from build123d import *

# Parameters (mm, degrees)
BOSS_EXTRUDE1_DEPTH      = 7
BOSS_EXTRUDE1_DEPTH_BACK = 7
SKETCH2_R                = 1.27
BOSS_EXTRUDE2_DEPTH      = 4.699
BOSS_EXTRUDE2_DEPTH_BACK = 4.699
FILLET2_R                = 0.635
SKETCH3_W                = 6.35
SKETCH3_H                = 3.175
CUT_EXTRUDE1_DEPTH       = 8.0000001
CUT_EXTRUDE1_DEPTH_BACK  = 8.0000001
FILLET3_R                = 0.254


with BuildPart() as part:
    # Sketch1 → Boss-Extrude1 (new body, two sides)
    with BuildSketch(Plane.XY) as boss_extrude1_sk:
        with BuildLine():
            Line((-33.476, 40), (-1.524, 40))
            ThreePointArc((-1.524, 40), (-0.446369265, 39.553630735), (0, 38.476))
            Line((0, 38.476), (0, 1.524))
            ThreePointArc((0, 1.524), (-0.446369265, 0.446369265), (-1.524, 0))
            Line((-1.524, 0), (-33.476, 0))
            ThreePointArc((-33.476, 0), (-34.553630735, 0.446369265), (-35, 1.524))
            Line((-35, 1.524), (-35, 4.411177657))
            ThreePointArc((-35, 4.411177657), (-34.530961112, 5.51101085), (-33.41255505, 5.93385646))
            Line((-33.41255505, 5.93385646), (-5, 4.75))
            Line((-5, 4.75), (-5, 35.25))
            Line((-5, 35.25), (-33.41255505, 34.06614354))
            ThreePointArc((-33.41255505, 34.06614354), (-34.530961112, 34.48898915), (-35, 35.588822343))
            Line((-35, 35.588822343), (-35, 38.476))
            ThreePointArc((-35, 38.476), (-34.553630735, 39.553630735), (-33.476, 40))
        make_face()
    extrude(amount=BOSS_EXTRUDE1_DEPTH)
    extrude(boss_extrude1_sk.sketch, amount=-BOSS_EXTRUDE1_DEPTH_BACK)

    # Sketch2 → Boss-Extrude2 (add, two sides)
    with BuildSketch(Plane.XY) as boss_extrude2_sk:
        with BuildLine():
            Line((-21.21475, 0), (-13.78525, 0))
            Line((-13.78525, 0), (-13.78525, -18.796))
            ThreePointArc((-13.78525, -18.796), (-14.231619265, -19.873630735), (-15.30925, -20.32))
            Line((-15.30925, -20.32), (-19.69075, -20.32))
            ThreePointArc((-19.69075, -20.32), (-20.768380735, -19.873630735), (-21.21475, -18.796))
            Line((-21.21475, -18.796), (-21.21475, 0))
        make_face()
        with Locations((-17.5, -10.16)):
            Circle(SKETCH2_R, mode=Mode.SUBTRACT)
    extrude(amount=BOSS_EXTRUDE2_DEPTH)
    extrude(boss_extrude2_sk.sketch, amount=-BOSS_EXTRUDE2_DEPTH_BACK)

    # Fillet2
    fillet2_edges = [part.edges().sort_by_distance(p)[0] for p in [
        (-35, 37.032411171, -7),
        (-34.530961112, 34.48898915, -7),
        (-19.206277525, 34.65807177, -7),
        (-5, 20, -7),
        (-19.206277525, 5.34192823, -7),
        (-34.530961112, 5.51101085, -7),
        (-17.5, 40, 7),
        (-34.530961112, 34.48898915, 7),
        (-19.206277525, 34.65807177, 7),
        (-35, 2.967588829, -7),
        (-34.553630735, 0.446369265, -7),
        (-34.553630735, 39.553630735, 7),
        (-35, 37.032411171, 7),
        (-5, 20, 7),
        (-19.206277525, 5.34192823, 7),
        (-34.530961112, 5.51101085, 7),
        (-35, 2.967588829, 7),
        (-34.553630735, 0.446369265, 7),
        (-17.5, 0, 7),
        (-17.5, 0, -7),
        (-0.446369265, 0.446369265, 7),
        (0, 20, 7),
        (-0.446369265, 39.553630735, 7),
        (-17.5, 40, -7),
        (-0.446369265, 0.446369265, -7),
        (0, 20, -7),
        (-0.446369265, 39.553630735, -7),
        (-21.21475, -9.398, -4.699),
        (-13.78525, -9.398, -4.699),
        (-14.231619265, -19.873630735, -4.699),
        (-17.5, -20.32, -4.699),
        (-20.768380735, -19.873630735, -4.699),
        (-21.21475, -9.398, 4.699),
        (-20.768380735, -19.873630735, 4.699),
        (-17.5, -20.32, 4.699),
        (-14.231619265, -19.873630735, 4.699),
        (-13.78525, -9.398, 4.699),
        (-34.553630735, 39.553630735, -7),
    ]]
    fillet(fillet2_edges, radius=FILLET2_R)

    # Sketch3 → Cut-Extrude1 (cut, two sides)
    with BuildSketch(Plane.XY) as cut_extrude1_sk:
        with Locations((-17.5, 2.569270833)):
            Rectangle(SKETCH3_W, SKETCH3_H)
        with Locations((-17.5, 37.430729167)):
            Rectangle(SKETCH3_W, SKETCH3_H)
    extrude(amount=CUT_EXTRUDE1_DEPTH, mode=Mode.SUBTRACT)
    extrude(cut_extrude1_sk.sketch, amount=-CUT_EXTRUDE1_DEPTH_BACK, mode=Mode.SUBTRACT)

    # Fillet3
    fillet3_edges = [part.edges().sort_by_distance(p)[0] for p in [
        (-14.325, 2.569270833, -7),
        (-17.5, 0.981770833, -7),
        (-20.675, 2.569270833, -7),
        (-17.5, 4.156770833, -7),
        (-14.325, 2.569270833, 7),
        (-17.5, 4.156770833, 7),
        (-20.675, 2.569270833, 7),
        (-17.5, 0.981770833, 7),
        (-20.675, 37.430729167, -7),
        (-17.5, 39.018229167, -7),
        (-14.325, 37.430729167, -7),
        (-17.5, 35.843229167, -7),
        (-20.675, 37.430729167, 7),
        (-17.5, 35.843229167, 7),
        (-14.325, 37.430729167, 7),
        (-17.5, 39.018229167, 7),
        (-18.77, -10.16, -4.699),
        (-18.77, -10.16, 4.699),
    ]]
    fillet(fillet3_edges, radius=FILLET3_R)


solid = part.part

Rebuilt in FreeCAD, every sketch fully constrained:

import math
import FreeCAD as App
import Part
import Sketcher

V = App.Vector
Q = App.Units.Quantity


def edges_at(feature, points):
    """Names of the edges that pass closest to the given points."""
    edges = feature.Shape.Edges
    near = lambda p: min(range(len(edges)), key=lambda i: edges[i].distToShape(Part.Vertex(*p))[0])
    return sorted({f"Edge{near(p) + 1}" for p in points})

doc = App.newDocument("Part")
body = doc.addObject("PartDesign::Body", "Body")

sketch1 = body.newObject("Sketcher::SketchObject", "Sketch")
sketch1.AttachmentSupport = (doc.getObject("XY_Plane"), [""])
sketch1.MapMode = "FlatFace"
sketch1.addGeometry(Part.LineSegment(V(-1.5, 40, 0), V(-33.5, 40, 0)), False)
sketch1.addGeometry(Part.ArcOfCircle(Part.Circle(V(-33.5, 38.5, 0), V(0, 0, 1), 1.5), math.radians(90), math.radians(180)), False)
sketch1.addGeometry(Part.LineSegment(V(-35, 38.5, 0), V(-35, 35.6, 0)), False)
sketch1.addGeometry(Part.ArcOfCircle(Part.Circle(V(-33.5, 35.6, 0), V(0, 0, 1), 1.5), math.radians(180), math.radians(272)), False)
sketch1.addGeometry(Part.LineSegment(V(-33.4, 34.1, 0), V(-5, 35.2, 0)), False)
sketch1.addGeometry(Part.LineSegment(V(-5, 35.2, 0), V(-5, 4.8, 0)), False)
sketch1.addGeometry(Part.LineSegment(V(-5, 4.8, 0), V(-33.4, 5.9, 0)), False)
sketch1.addGeometry(Part.ArcOfCircle(Part.Circle(V(-33.5, 4.4, 0), V(0, 0, 1), 1.5), math.radians(88), math.radians(180)), False)
sketch1.addGeometry(Part.LineSegment(V(-35, 4.4, 0), V(-35, 1.5, 0)), False)
sketch1.addGeometry(Part.ArcOfCircle(Part.Circle(V(-33.5, 1.5, 0), V(0, 0, 1), 1.5), math.radians(180), math.radians(270)), False)
sketch1.addGeometry(Part.LineSegment(V(-33.5, 0, 0), V(-1.5, 0, 0)), False)
sketch1.addGeometry(Part.ArcOfCircle(Part.Circle(V(-1.5, 1.5, 0), V(0, 0, 1), 1.5), math.radians(-90), math.radians(0)), False)
sketch1.addGeometry(Part.LineSegment(V(0, 1.5, 0), V(0, 38.5, 0)), False)
sketch1.addGeometry(Part.ArcOfCircle(Part.Circle(V(-1.5, 38.5, 0), V(0, 0, 1), 1.5), math.radians(0), math.radians(90)), False)
sketch1.addConstraint(Sketcher.Constraint("Tangent", 0, 2, 1, 1))
sketch1.addConstraint(Sketcher.Constraint("Tangent", 1, 2, 2, 1))
sketch1.addConstraint(Sketcher.Constraint("Tangent", 2, 2, 3, 1))
sketch1.addConstraint(Sketcher.Constraint("Tangent", 3, 2, 4, 1))
sketch1.addConstraint(Sketcher.Constraint("Coincident", 4, 2, 5, 1))
sketch1.addConstraint(Sketcher.Constraint("Coincident", 5, 2, 6, 1))
sketch1.addConstraint(Sketcher.Constraint("Tangent", 6, 2, 7, 1))
sketch1.addConstraint(Sketcher.Constraint("Tangent", 7, 2, 8, 1))
sketch1.addConstraint(Sketcher.Constraint("Tangent", 8, 2, 9, 1))
sketch1.addConstraint(Sketcher.Constraint("Tangent", 9, 2, 10, 1))
sketch1.addConstraint(Sketcher.Constraint("Tangent", 10, 2, 11, 1))
sketch1.addConstraint(Sketcher.Constraint("Tangent", 11, 2, 12, 1))
sketch1.addConstraint(Sketcher.Constraint("Tangent", 12, 2, 13, 1))
sketch1.addConstraint(Sketcher.Constraint("Tangent", 13, 2, 0, 1))
sketch1.addConstraint(Sketcher.Constraint("Horizontal", 0))
sketch1.addConstraint(Sketcher.Constraint("Vertical", 2))
sketch1.addConstraint(Sketcher.Constraint("Vertical", 5))
sketch1.addConstraint(Sketcher.Constraint("Vertical", 8))
sketch1.addConstraint(Sketcher.Constraint("Horizontal", 10))
sketch1.addConstraint(Sketcher.Constraint("Vertical", 12))
sketch1.addConstraint(Sketcher.Constraint("Equal", 1, 3))
sketch1.addConstraint(Sketcher.Constraint("Equal", 3, 7))
sketch1.addConstraint(Sketcher.Constraint("Equal", 7, 9))
sketch1.addConstraint(Sketcher.Constraint("Equal", 9, 11))
sketch1.addConstraint(Sketcher.Constraint("Equal", 11, 13))
sketch1.addConstraint(Sketcher.Constraint("PointOnObject", 9, 2, -1))
sketch1.addConstraint(Sketcher.Constraint("PointOnObject", 11, 2, -2))
sketch1.addConstraint(Sketcher.Constraint("Vertical", 3, 3, 7, 3))
sketch1.addConstraint(Sketcher.Constraint("Vertical", 3, 2, 6, 2))
sketch1.addConstraint(Sketcher.Constraint("Equal", 2, 8))
sketch1.addConstraint(Sketcher.Constraint("Radius", 1, Q("0.06 in")))
sketch1.addConstraint(Sketcher.Constraint("DistanceX", 0, 2, 0, 1, 31.952))
sketch1.addConstraint(Sketcher.Constraint("DistanceY", 5, 2, 5, 1, 30.5))
sketch1.addConstraint(Sketcher.Constraint("DistanceY", 12, 1, 12, 2, 36.952))
sketch1.addConstraint(Sketcher.Constraint("DistanceX", 4, 2, -1, 1, 5.0))
sketch1.addConstraint(Sketcher.Constraint("Distance", 4, 28.437208))
pad1 = body.newObject("PartDesign::Pad", "Pad")
pad1.Profile = sketch1
pad1.Type = "TwoLengths"
pad1.Length = 7
pad1.Length2 = 7

sketch2 = body.newObject("Sketcher::SketchObject", "Sketch001")
sketch2.AttachmentSupport = (doc.getObject("XY_Plane"), [""])
sketch2.MapMode = "FlatFace"
sketch2.addGeometry(Part.LineSegment(V(-13.8, 0, 0), V(-21.2, 0, 0)), False)
sketch2.addGeometry(Part.LineSegment(V(-21.2, 0, 0), V(-21.2, -18.8, 0)), False)
sketch2.addGeometry(Part.ArcOfCircle(Part.Circle(V(-19.7, -18.8, 0), V(0, 0, 1), 1.5), math.radians(180), math.radians(270)), False)
sketch2.addGeometry(Part.LineSegment(V(-19.7, -20.3, 0), V(-15.3, -20.3, 0)), False)
sketch2.addGeometry(Part.ArcOfCircle(Part.Circle(V(-15.3, -18.8, 0), V(0, 0, 1), 1.5), math.radians(-90), math.radians(0)), False)
sketch2.addGeometry(Part.LineSegment(V(-13.8, -18.8, 0), V(-13.8, 0, 0)), False)
sketch2.addGeometry(Part.Circle(V(-17.5, -10.2, 0), V(0, 0, 1), 1.3), False)
sketch2.addConstraint(Sketcher.Constraint("Coincident", 0, 2, 1, 1))
sketch2.addConstraint(Sketcher.Constraint("Tangent", 1, 2, 2, 1))
sketch2.addConstraint(Sketcher.Constraint("Tangent", 2, 2, 3, 1))
sketch2.addConstraint(Sketcher.Constraint("Tangent", 3, 2, 4, 1))
sketch2.addConstraint(Sketcher.Constraint("Tangent", 4, 2, 5, 1))
sketch2.addConstraint(Sketcher.Constraint("Coincident", 5, 2, 0, 1))
sketch2.addConstraint(Sketcher.Constraint("Horizontal", 0))
sketch2.addConstraint(Sketcher.Constraint("Vertical", 1))
sketch2.addConstraint(Sketcher.Constraint("Horizontal", 3))
sketch2.addConstraint(Sketcher.Constraint("Vertical", 5))
sketch2.addConstraint(Sketcher.Constraint("Equal", 2, 4))
sketch2.addConstraint(Sketcher.Constraint("PointOnObject", 0, 2, -1))
sketch2.addConstraint(Sketcher.Constraint("Diameter", 6, Q("0.1 in")))
sketch2.addConstraint(Sketcher.Constraint("Radius", 2, Q("0.06 in")))
sketch2.addConstraint(Sketcher.Constraint("DistanceY", 1, 2, 1, 1, Q("0.74 in")))
sketch2.addConstraint(Sketcher.Constraint("DistanceY", 6, 3, -1, 1, Q("0.4 in")))
sketch2.addConstraint(Sketcher.Constraint("DistanceX", 0, 2, 0, 1, Q("0.2925 in")))
sketch2.addConstraint(Sketcher.Constraint("DistanceX", 6, 3, -1, 1, 17.5))
sketch2.addConstraint(Sketcher.Constraint("DistanceX", 2, 3, -1, 1, 19.69075))
pad2 = body.newObject("PartDesign::Pad", "Pad001")
pad2.Profile = sketch2
pad2.Type = "TwoLengths"
pad2.Length = Q("0.185 in")
pad2.Length2 = Q("0.185 in")
doc.recompute()

fillet = body.newObject("PartDesign::Fillet", "Fillet")
fillet.Base = (pad2, edges_at(pad2, [
    (-35, 37.032, -7),
    (-34.531, 34.489, -7),
    (-19.206, 34.658, -7),
    (-5, 20, -7),
    (-19.206, 5.342, -7),
    (-34.531, 5.511, -7),
    (-17.5, 40, 7),
    (-34.531, 34.489, 7),
    (-19.206, 34.658, 7),
    (-35, 2.968, -7),
    (-34.554, 0.446, -7),
    (-34.554, 39.554, 7),
    (-35, 37.032, 7),
    (-5, 20, 7),
    (-19.206, 5.342, 7),
    (-34.531, 5.511, 7),
    (-35, 2.968, 7),
    (-34.554, 0.446, 7),
    (-17.5, 0, 7),
    (-17.5, 0, -7),
    (-0.446, 0.446, 7),
    (0, 20, 7),
    (-0.446, 39.554, 7),
    (-17.5, 40, -7),
    (-0.446, 0.446, -7),
    (0, 20, -7),
    (-0.446, 39.554, -7),
    (-21.215, -9.398, -4.699),
    (-13.785, -9.398, -4.699),
    (-14.232, -19.874, -4.699),
    (-17.5, -20.32, -4.699),
    (-20.768, -19.874, -4.699),
    (-21.215, -9.398, 4.699),
    (-20.768, -19.874, 4.699),
    (-17.5, -20.32, 4.699),
    (-14.232, -19.874, 4.699),
    (-13.785, -9.398, 4.699),
    (-34.554, 39.554, -7),
]))
fillet.Radius = Q("0.025 in")

sketch3 = body.newObject("Sketcher::SketchObject", "Sketch002")
sketch3.AttachmentSupport = (doc.getObject("XY_Plane"), [""])
sketch3.MapMode = "FlatFace"
sketch3.addGeometry(Part.LineSegment(V(-20.7, 4.2, 0), V(-20.7, 1, 0)), False)
sketch3.addGeometry(Part.LineSegment(V(-20.7, 1, 0), V(-14.3, 1, 0)), False)
sketch3.addGeometry(Part.LineSegment(V(-14.3, 1, 0), V(-14.3, 4.2, 0)), False)
sketch3.addGeometry(Part.LineSegment(V(-14.3, 4.2, 0), V(-20.7, 4.2, 0)), False)
sketch3.addGeometry(Part.LineSegment(V(-20.7, 39, 0), V(-20.7, 35.8, 0)), False)
sketch3.addGeometry(Part.LineSegment(V(-20.7, 35.8, 0), V(-14.3, 35.8, 0)), False)
sketch3.addGeometry(Part.LineSegment(V(-14.3, 35.8, 0), V(-14.3, 39, 0)), False)
sketch3.addGeometry(Part.LineSegment(V(-14.3, 39, 0), V(-20.7, 39, 0)), False)
sketch3.addConstraint(Sketcher.Constraint("Coincident", 0, 2, 1, 1))
sketch3.addConstraint(Sketcher.Constraint("Coincident", 1, 2, 2, 1))
sketch3.addConstraint(Sketcher.Constraint("Coincident", 2, 2, 3, 1))
sketch3.addConstraint(Sketcher.Constraint("Coincident", 3, 2, 0, 1))
sketch3.addConstraint(Sketcher.Constraint("Coincident", 4, 2, 5, 1))
sketch3.addConstraint(Sketcher.Constraint("Coincident", 5, 2, 6, 1))
sketch3.addConstraint(Sketcher.Constraint("Coincident", 6, 2, 7, 1))
sketch3.addConstraint(Sketcher.Constraint("Coincident", 7, 2, 4, 1))
sketch3.addConstraint(Sketcher.Constraint("Vertical", 0))
sketch3.addConstraint(Sketcher.Constraint("Horizontal", 1))
sketch3.addConstraint(Sketcher.Constraint("Vertical", 2))
sketch3.addConstraint(Sketcher.Constraint("Horizontal", 3))
sketch3.addConstraint(Sketcher.Constraint("Vertical", 4))
sketch3.addConstraint(Sketcher.Constraint("Horizontal", 5))
sketch3.addConstraint(Sketcher.Constraint("Vertical", 6))
sketch3.addConstraint(Sketcher.Constraint("Horizontal", 7))
sketch3.addConstraint(Sketcher.Constraint("Vertical", 3, 2, 4, 2))
sketch3.addConstraint(Sketcher.Constraint("Vertical", 2, 2, 5, 2))
sketch3.addConstraint(Sketcher.Constraint("Equal", 2, 4))
sketch3.addConstraint(Sketcher.Constraint("DistanceX", 1, 1, 1, 2, Q("0.25 in")))
sketch3.addConstraint(Sketcher.Constraint("DistanceY", 0, 2, 0, 1, Q("0.125 in")))
sketch3.addConstraint(Sketcher.Constraint("DistanceX", 0, 2, -1, 1, 20.675))
sketch3.addConstraint(Sketcher.Constraint("DistanceY", -1, 1, 0, 2, 0.981771))
sketch3.addConstraint(Sketcher.Constraint("DistanceY", -1, 1, 4, 2, 35.843229))
pocket1 = body.newObject("PartDesign::Pocket", "Pocket")
pocket1.Profile = sketch3
pocket1.Type = "ThroughAll"
pocket1.Midplane = True
doc.recompute()

fillet2 = body.newObject("PartDesign::Fillet", "Fillet001")
fillet2.Base = (pocket1, edges_at(pocket1, [
    (-14.325, 2.569, -7),
    (-17.5, 0.982, -7),
    (-20.675, 2.569, -7),
    (-17.5, 4.157, -7),
    (-14.325, 2.569, 7),
    (-17.5, 4.157, 7),
    (-20.675, 2.569, 7),
    (-17.5, 0.982, 7),
    (-20.675, 37.431, -7),
    (-17.5, 39.018, -7),
    (-14.325, 37.431, -7),
    (-17.5, 35.843, -7),
    (-20.675, 37.431, 7),
    (-17.5, 35.843, 7),
    (-14.325, 37.431, 7),
    (-17.5, 39.018, 7),
    (-18.77, -10.16, -4.699),
    (-18.77, -10.16, 4.699),
]))
fillet2.Radius = Q("0.01 in")

doc.recompute()
